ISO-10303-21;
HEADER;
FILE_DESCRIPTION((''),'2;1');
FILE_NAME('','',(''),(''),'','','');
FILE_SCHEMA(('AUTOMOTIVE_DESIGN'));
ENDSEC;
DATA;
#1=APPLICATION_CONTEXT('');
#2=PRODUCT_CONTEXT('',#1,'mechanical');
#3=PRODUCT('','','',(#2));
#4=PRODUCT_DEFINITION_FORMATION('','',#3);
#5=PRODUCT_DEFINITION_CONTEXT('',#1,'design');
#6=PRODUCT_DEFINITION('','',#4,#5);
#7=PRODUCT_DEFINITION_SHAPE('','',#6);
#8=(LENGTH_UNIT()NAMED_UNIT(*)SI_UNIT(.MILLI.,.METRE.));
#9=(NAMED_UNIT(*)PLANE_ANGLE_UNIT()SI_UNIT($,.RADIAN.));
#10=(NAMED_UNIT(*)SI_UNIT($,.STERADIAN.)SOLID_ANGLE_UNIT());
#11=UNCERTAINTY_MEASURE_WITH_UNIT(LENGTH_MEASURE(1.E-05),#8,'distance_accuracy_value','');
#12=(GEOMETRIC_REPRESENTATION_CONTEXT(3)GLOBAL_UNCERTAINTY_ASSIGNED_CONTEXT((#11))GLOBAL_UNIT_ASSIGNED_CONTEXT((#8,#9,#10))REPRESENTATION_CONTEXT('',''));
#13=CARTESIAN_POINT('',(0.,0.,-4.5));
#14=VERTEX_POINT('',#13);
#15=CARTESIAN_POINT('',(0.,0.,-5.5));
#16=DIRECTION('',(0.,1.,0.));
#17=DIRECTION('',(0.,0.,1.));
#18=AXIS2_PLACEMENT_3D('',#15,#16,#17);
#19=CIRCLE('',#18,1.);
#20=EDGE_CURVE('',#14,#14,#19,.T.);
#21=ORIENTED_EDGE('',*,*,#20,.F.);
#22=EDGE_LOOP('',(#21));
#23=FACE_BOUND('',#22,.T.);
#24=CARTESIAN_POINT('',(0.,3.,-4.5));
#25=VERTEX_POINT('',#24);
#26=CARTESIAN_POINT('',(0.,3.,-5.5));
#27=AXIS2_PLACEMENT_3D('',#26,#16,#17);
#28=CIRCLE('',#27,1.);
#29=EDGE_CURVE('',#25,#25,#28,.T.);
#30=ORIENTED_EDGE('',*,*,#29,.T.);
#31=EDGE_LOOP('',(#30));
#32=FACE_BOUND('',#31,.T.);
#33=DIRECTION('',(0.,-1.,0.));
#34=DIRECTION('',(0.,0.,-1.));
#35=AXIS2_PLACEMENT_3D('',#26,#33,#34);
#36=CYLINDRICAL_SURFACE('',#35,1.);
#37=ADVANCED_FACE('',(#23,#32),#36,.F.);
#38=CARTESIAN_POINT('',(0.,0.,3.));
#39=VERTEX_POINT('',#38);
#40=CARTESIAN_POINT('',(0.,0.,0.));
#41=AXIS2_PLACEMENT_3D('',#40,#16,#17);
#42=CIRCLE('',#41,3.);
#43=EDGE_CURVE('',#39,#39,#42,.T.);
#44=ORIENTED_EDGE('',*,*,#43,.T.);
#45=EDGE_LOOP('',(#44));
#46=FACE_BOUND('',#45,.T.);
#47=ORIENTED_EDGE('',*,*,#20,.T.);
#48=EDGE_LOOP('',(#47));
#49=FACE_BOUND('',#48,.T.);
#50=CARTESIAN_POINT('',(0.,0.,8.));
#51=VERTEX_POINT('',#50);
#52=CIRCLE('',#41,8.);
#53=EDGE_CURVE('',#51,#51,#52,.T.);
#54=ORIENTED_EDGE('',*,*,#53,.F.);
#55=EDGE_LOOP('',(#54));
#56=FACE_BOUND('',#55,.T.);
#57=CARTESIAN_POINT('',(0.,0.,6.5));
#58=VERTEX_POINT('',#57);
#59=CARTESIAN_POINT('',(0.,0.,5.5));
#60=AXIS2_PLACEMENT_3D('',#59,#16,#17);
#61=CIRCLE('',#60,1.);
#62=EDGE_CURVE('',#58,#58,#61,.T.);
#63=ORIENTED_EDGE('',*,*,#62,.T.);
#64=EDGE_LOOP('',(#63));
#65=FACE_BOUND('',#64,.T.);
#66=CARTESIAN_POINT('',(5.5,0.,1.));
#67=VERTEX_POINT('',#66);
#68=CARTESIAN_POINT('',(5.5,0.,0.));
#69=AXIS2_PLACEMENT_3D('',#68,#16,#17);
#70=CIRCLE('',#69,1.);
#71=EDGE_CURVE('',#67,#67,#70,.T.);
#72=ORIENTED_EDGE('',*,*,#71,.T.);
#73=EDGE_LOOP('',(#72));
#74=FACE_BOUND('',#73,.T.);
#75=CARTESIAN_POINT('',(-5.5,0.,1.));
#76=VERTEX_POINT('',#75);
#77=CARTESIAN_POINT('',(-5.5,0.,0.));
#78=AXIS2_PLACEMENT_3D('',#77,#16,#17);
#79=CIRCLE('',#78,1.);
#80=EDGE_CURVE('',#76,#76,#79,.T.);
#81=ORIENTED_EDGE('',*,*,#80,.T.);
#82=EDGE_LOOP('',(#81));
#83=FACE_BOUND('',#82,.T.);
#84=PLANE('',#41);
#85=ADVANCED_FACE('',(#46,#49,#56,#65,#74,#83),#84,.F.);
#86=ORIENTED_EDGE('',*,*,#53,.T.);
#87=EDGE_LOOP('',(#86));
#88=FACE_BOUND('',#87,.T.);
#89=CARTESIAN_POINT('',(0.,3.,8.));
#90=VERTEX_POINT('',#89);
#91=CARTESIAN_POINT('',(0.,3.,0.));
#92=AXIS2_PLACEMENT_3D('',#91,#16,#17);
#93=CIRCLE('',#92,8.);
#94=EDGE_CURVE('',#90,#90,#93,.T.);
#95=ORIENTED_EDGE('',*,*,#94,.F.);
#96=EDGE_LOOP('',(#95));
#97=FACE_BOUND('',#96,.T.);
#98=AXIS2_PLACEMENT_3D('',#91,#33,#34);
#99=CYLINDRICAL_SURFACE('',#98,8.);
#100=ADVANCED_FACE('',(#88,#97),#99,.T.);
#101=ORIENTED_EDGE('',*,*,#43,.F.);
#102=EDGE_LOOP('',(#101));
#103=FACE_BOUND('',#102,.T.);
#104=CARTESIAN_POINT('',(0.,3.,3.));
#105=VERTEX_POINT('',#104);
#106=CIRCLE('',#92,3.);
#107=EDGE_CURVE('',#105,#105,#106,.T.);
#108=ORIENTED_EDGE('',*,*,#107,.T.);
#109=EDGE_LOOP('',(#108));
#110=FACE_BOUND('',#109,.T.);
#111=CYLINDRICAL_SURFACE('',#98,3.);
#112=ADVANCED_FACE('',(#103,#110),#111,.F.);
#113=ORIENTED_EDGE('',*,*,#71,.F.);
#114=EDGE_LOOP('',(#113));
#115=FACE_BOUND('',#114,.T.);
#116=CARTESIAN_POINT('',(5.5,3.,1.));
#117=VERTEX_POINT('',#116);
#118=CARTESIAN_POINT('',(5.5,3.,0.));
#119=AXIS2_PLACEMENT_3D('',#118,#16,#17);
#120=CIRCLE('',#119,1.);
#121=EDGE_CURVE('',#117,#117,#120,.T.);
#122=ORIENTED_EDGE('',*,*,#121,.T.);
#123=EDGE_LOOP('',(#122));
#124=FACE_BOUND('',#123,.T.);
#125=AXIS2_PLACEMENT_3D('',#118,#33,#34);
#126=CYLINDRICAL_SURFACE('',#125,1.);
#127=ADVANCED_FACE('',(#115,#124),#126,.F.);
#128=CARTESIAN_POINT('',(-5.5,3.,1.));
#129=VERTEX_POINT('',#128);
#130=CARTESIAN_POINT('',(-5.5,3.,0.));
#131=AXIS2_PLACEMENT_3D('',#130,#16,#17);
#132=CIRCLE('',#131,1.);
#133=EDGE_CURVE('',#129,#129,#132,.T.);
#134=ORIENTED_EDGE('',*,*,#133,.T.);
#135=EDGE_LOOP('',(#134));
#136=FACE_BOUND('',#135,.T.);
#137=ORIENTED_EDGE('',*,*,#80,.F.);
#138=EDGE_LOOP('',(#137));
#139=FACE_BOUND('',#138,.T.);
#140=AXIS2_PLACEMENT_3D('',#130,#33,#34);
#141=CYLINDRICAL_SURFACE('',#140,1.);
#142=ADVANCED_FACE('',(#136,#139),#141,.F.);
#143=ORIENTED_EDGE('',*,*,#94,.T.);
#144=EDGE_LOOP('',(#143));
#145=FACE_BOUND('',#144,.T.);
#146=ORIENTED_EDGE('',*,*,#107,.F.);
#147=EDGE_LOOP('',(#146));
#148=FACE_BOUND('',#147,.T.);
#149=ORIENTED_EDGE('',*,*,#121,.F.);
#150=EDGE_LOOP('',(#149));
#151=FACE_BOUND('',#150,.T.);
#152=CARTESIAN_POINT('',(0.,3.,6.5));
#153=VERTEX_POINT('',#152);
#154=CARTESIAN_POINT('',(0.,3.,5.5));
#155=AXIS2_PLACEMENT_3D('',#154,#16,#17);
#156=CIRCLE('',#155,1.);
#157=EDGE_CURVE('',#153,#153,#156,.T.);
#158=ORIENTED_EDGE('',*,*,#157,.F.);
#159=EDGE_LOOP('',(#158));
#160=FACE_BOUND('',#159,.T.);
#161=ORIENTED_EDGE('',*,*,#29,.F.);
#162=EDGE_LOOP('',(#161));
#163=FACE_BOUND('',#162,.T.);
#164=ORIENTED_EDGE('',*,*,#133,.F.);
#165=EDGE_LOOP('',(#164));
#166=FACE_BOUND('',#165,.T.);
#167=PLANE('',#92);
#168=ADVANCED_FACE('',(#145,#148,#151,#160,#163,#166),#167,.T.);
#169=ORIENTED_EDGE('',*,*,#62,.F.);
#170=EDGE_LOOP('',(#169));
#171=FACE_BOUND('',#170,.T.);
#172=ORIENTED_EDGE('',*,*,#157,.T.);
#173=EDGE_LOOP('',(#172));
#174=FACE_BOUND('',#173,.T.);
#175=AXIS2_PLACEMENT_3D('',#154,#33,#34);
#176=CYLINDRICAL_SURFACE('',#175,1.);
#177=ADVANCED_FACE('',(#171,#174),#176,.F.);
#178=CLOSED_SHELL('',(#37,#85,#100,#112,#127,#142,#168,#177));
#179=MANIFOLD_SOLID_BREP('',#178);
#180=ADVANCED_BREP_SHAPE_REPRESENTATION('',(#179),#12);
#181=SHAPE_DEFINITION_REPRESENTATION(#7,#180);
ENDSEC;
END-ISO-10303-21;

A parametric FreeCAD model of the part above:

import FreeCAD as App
import Part
import Sketcher
from FreeCAD import Vector

doc = App.newDocument("Part")
params = doc.addObject("Spreadsheet::Sheet", "Params")
for row, (alias, value) in enumerate([
    ("sketch1_diameter", "16 mm"),
    ("sketch1_diameter2", "2 mm"),
    ("sketch1_diameter3", "6 mm"),
    ("pad1_length", "3 mm"),
], start=1):
    params.set(f"A{row}", alias)
    params.set(f"B{row}", "=" + value)
    params.setAlias(f"B{row}", alias)

body = doc.addObject("PartDesign::Body", "Body")

# Sketch on XZ plane
sketch1 = body.newObject("Sketcher::SketchObject", "Sketch")
sketch1.AttachmentSupport = (doc.getObject("XZ_Plane"), [""])
sketch1.MapMode = "FlatFace"
sketch1.addGeometry(Part.Circle(Vector(0, 0, 0), Vector(0, 0, 1), 8), False)
sketch1.addGeometry(Part.Circle(Vector(0, -5.5, 0), Vector(0, 0, 1), 1), False)
sketch1.addGeometry(Part.Circle(Vector(-5.5, 0, 0), Vector(0, 0, 1), 1), False)
sketch1.addGeometry(Part.Circle(Vector(5.5, 0, 0), Vector(0, 0, 1), 1), False)
sketch1.addGeometry(Part.Circle(Vector(0, 0, 0), Vector(0, 0, 1), 3), False)
sketch1.addGeometry(Part.Circle(Vector(0, 5.5, 0), Vector(0, 0, 1), 1), False)
sketch1.addConstraint(Sketcher.Constraint("Coincident", 0, 3, -1, 1))
sketch1.addConstraint(Sketcher.Constraint("Coincident", 4, 3, -1, 1))
sketch1.addConstraint(Sketcher.Constraint("Equal", 1, 2))
sketch1.addConstraint(Sketcher.Constraint("Equal", 2, 3))
sketch1.addConstraint(Sketcher.Constraint("Equal", 3, 5))
sketch1.addConstraint(Sketcher.Constraint("Symmetric", 2, 3, 3, 3, -1, 1))
sketch1.addConstraint(Sketcher.Constraint("Symmetric", 1, 3, 5, 3, -1, 1))
sketch1.addConstraint(Sketcher.Constraint("PointOnObject", 1, 3, -2))
sketch1.addConstraint(Sketcher.Constraint("PointOnObject", 2, 3, -1))
sketch1.addConstraint(Sketcher.Constraint("Diameter", 0, 16.0))
sketch1.addConstraint(Sketcher.Constraint("Diameter", 1, 2.0))
sketch1.addConstraint(Sketcher.Constraint("Diameter", 4, 6.0))
sketch1.addConstraint(Sketcher.Constraint("DistanceX", 2, 3, 3, 3, 11.0))
sketch1.addConstraint(Sketcher.Constraint("DistanceY", 1, 3, 5, 3, 11.0))
sketch1.setExpression("Constraints[9]", "Params.sketch1_diameter")
sketch1.setExpression("Constraints[10]", "Params.sketch1_diameter2")
sketch1.setExpression("Constraints[11]", "Params.sketch1_diameter3")
pad1 = body.newObject("PartDesign::Pad", "Pad")
pad1.Profile = sketch1
pad1.setExpression("Length", "Params.pad1_length")
pad1.Reversed = True

doc.recompute()
